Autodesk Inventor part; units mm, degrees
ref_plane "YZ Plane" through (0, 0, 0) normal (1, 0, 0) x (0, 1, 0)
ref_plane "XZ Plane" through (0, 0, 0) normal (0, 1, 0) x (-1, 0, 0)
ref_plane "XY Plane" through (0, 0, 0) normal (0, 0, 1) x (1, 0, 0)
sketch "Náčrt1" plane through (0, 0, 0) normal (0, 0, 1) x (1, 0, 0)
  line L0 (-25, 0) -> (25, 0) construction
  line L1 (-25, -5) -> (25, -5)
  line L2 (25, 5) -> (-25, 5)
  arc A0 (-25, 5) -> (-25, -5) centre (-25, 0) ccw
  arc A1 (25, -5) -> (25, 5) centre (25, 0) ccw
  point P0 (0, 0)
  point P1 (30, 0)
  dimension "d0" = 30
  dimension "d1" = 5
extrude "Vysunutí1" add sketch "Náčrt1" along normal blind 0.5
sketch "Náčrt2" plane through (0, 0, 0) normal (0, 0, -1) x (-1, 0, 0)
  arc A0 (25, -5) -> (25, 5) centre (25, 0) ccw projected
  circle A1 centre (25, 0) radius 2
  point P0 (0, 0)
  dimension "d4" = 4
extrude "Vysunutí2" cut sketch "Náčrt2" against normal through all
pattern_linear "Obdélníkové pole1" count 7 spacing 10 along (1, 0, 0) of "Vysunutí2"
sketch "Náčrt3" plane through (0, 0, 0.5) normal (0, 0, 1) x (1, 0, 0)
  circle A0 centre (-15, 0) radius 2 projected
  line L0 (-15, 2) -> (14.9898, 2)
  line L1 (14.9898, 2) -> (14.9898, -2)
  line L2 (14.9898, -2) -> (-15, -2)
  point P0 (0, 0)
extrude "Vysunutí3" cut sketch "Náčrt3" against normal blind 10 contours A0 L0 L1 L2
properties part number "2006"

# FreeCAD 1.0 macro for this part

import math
import FreeCAD as App
import Part
import Sketcher

V = App.Vector

doc = App.newDocument("Part")
body = doc.addObject("PartDesign::Body", "Body")

# Sketch on XY plane
sketch1 = body.newObject("Sketcher::SketchObject", "Sketch")
sketch1.AttachmentSupport = (doc.getObject("XY_Plane"), [""])
sketch1.MapMode = "FlatFace"
sketch1.addGeometry([
    Part.ArcOfCircle(Part.Circle(V(-25, 0, 0), V(0, 0, 1), 5), math.radians(90), math.radians(270)),
    Part.LineSegment(V(-25, -5, 0), V(25, -5, 0)),
    Part.ArcOfCircle(Part.Circle(V(25, 0, 0), V(0, 0, 1), 5), math.radians(-90), math.radians(90)),
    Part.LineSegment(V(25, 5, 0), V(-25, 5, 0)),
], False)
sketch1.addConstraint([
    Sketcher.Constraint("Tangent", 0, 2, 1, 1),
    Sketcher.Constraint("Tangent", 1, 2, 2, 1),
    Sketcher.Constraint("Tangent", 2, 2, 3, 1),
    Sketcher.Constraint("Tangent", 3, 2, 0, 1),
    Sketcher.Constraint("Horizontal", 1),
    Sketcher.Constraint("Horizontal", 3),
    Sketcher.Constraint("Symmetric", 0, 3, 2, 3, -1, 1),
    Sketcher.Constraint("Radius", 0, 5.0),
    Sketcher.Constraint("DistanceX", 1, 1, 1, 2, 50.0),
])
pad1 = body.newObject("PartDesign::Pad", "Pad")
pad1.Profile = sketch1
pad1.Length = 0.5

# Sketch on XY plane
sketch2 = body.newObject("Sketcher::SketchObject", "Sketch001")
sketch2.AttachmentSupport = (doc.getObject("XY_Plane"), [""])
sketch2.MapMode = "FlatFace"
sketch2.addGeometry(Part.Circle(V(-25, 0, 0), V(0, 0, 1), 2), False)
sketch2.addConstraint([
    Sketcher.Constraint("PointOnObject", 0, 3, -1),
    Sketcher.Constraint("Diameter", 0, 4.0),
    Sketcher.Constraint("DistanceX", 0, 3, -1, 1, 25.0),
])
pocket1 = body.newObject("PartDesign::Pocket", "Pocket")
pocket1.Profile = sketch2
pocket1.Type = "ThroughAll"
pocket1.Reversed = True
doc.recompute()

linearpattern = body.newObject("PartDesign::LinearPattern", "LinearPattern")
linearpattern.Originals = [pocket1]
linearpattern.Direction = (doc.getObject("X_Axis"), [""])
linearpattern.Mode = "offset"
linearpattern.Offset = 10
linearpattern.Occurrences = 7
body.Tip = linearpattern

# Sketch on XY plane
sketch3 = body.newObject("Sketcher::SketchObject", "Sketch002")
sketch3.AttachmentSupport = (doc.getObject("XY_Plane"), [""])
sketch3.MapMode = "FlatFace"
sketch3.AttachmentOffset = App.Placement(V(0, 0, 0.5), App.Rotation())
sketch3.addGeometry([
    Part.ArcOfCircle(Part.Circle(V(-15, 0, 0), V(0, 0, 1), 2), math.radians(-90), math.radians(90)),
    Part.LineSegment(V(-15, -2, 0), V(14.9898, -2, 0)),
    Part.LineSegment(V(14.9898, -2, 0), V(14.9898, 2, 0)),
    Part.LineSegment(V(14.9898, 2, 0), V(-15, 2, 0)),
], False)
sketch3.addConstraint([
    Sketcher.Constraint("Tangent", 0, 1, 1, 1),
    Sketcher.Constraint("Coincident", 1, 2, 2, 1),
    Sketcher.Constraint("Coincident", 2, 2, 3, 1),
    Sketcher.Constraint("Tangent", 3, 2, 0, 2),
    Sketcher.Constraint("Horizontal", 1),
    Sketcher.Constraint("Vertical", 2),
    Sketcher.Constraint("Horizontal", 3),
    Sketcher.Constraint("PointOnObject", 0, 3, -1),
    Sketcher.Constraint("Radius", 0, 2.0),
    Sketcher.Constraint("DistanceX", 0, 3, -1, 1, 15.0),
    Sketcher.Constraint("DistanceX", 1, 1, 1, 2, 29.9898),
])
pocket2 = body.newObject("PartDesign::Pocket", "Pocket001")
pocket2.Profile = sketch3
pocket2.Length = 10

doc.recompute()
